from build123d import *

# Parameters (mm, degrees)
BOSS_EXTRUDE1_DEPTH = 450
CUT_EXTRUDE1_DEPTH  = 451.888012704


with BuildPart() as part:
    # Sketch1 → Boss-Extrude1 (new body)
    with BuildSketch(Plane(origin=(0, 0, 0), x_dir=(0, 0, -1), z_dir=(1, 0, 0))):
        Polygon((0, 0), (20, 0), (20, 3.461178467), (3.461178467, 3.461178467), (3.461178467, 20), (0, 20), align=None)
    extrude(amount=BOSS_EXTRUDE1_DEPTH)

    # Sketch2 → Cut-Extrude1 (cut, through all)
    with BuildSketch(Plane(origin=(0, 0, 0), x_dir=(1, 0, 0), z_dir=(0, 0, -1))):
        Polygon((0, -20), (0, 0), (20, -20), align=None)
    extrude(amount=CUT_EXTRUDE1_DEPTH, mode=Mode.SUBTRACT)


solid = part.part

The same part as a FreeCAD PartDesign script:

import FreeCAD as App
import Part
import Sketcher

doc = App.newDocument("Part")
params = doc.addObject("Spreadsheet::Sheet", "Params")
for row, (alias, value) in enumerate([
    ("sketch1_width", "20 mm"),
    ("pad1_length", "450 mm"),
    ("sketch2_width", "20 mm"),
], start=1):
    params.set(f"A{row}", alias)
    params.set(f"B{row}", "=" + value)
    params.setAlias(f"B{row}", alias)

body = doc.addObject("PartDesign::Body", "Body")

sketch1 = body.newObject("Sketcher::SketchObject", "Sketch")
sketch1.AttachmentSupport = (doc.getObject("YZ_Plane"), [""])
sketch1.MapMode = "FlatFace"
sketch1.addGeometry(Part.LineSegment(App.Vector(0, 0, 0), App.Vector(0, -20, 0)), False)
sketch1.addGeometry(Part.LineSegment(App.Vector(0, -20, 0), App.Vector(3.461178, -20, 0)), False)
sketch1.addGeometry(Part.LineSegment(App.Vector(3.461178, -20, 0), App.Vector(3.461178, -3.461178, 0)), False)
sketch1.addGeometry(Part.LineSegment(App.Vector(3.461178, -3.461178, 0), App.Vector(20, -3.461178, 0)), False)
sketch1.addGeometry(Part.LineSegment(App.Vector(20, -3.461178, 0), App.Vector(20, 0, 0)), False)
sketch1.addGeometry(Part.LineSegment(App.Vector(20, 0, 0), App.Vector(0, 0, 0)), False)
sketch1.addConstraint(Sketcher.Constraint("Coincident", 0, 2, 1, 1))
sketch1.addConstraint(Sketcher.Constraint("Coincident", 1, 2, 2, 1))
sketch1.addConstraint(Sketcher.Constraint("Coincident", 2, 2, 3, 1))
sketch1.addConstraint(Sketcher.Constraint("Coincident", 3, 2, 4, 1))
sketch1.addConstraint(Sketcher.Constraint("Coincident", 4, 2, 5, 1))
sketch1.addConstraint(Sketcher.Constraint("Coincident", 5, 2, 0, 1))
sketch1.addConstraint(Sketcher.Constraint("Vertical", 0))
sketch1.addConstraint(Sketcher.Constraint("Horizontal", 1))
sketch1.addConstraint(Sketcher.Constraint("Vertical", 2))
sketch1.addConstraint(Sketcher.Constraint("Horizontal", 3))
sketch1.addConstraint(Sketcher.Constraint("Vertical", 4))
sketch1.addConstraint(Sketcher.Constraint("Horizontal", 5))
sketch1.addConstraint(Sketcher.Constraint("Coincident", 5, 2, -1, 1))
sketch1.addConstraint(Sketcher.Constraint("Equal", 5, 0))
sketch1.addConstraint(Sketcher.Constraint("Equal", 3, 2))
sketch1.addConstraint(Sketcher.Constraint("DistanceX", 5, 2, 5, 1, 20.0))
sketch1.addConstraint(Sketcher.Constraint("DistanceX", 1, 1, 1, 2, 3.461178))
sketch1.setExpression("Constraints[15]", "Params.sketch1_width")
pad1 = body.newObject("PartDesign::Pad", "Pad")
pad1.Profile = sketch1
pad1.setExpression("Length", "Params.pad1_length")

sketch2 = body.newObject("Sketcher::SketchObject", "Sketch001")
sketch2.AttachmentSupport = (doc.getObject("XY_Plane"), [""])
sketch2.MapMode = "FlatFace"
sketch2.addGeometry(Part.LineSegment(App.Vector(0, 0, 0), App.Vector(0, 20, 0)), False)
sketch2.addGeometry(Part.LineSegment(App.Vector(0, 20, 0), App.Vector(20, 20, 0)), False)
sketch2.addGeometry(Part.LineSegment(App.Vector(20, 20, 0), App.Vector(0, 0, 0)), False)
sketch2.addConstraint(Sketcher.Constraint("Coincident", 0, 2, 1, 1))
sketch2.addConstraint(Sketcher.Constraint("Coincident", 1, 2, 2, 1))
sketch2.addConstraint(Sketcher.Constraint("Coincident", 2, 2, 0, 1))
sketch2.addConstraint(Sketcher.Constraint("Vertical", 0))
sketch2.addConstraint(Sketcher.Constraint("Horizontal", 1))
sketch2.addConstraint(Sketcher.Constraint("Coincident", 2, 2, -1, 1))
sketch2.addConstraint(Sketcher.Constraint("Equal", 1, 0))
sketch2.addConstraint(Sketcher.Constraint("DistanceX", 1, 1, 1, 2, 20.0))
sketch2.setExpression("Constraints[7]", "Params.sketch2_width")
pocket1 = body.newObject("PartDesign::Pocket", "Pocket")
pocket1.Profile = sketch2
pocket1.Type = "ThroughAll"

doc.recompute()
